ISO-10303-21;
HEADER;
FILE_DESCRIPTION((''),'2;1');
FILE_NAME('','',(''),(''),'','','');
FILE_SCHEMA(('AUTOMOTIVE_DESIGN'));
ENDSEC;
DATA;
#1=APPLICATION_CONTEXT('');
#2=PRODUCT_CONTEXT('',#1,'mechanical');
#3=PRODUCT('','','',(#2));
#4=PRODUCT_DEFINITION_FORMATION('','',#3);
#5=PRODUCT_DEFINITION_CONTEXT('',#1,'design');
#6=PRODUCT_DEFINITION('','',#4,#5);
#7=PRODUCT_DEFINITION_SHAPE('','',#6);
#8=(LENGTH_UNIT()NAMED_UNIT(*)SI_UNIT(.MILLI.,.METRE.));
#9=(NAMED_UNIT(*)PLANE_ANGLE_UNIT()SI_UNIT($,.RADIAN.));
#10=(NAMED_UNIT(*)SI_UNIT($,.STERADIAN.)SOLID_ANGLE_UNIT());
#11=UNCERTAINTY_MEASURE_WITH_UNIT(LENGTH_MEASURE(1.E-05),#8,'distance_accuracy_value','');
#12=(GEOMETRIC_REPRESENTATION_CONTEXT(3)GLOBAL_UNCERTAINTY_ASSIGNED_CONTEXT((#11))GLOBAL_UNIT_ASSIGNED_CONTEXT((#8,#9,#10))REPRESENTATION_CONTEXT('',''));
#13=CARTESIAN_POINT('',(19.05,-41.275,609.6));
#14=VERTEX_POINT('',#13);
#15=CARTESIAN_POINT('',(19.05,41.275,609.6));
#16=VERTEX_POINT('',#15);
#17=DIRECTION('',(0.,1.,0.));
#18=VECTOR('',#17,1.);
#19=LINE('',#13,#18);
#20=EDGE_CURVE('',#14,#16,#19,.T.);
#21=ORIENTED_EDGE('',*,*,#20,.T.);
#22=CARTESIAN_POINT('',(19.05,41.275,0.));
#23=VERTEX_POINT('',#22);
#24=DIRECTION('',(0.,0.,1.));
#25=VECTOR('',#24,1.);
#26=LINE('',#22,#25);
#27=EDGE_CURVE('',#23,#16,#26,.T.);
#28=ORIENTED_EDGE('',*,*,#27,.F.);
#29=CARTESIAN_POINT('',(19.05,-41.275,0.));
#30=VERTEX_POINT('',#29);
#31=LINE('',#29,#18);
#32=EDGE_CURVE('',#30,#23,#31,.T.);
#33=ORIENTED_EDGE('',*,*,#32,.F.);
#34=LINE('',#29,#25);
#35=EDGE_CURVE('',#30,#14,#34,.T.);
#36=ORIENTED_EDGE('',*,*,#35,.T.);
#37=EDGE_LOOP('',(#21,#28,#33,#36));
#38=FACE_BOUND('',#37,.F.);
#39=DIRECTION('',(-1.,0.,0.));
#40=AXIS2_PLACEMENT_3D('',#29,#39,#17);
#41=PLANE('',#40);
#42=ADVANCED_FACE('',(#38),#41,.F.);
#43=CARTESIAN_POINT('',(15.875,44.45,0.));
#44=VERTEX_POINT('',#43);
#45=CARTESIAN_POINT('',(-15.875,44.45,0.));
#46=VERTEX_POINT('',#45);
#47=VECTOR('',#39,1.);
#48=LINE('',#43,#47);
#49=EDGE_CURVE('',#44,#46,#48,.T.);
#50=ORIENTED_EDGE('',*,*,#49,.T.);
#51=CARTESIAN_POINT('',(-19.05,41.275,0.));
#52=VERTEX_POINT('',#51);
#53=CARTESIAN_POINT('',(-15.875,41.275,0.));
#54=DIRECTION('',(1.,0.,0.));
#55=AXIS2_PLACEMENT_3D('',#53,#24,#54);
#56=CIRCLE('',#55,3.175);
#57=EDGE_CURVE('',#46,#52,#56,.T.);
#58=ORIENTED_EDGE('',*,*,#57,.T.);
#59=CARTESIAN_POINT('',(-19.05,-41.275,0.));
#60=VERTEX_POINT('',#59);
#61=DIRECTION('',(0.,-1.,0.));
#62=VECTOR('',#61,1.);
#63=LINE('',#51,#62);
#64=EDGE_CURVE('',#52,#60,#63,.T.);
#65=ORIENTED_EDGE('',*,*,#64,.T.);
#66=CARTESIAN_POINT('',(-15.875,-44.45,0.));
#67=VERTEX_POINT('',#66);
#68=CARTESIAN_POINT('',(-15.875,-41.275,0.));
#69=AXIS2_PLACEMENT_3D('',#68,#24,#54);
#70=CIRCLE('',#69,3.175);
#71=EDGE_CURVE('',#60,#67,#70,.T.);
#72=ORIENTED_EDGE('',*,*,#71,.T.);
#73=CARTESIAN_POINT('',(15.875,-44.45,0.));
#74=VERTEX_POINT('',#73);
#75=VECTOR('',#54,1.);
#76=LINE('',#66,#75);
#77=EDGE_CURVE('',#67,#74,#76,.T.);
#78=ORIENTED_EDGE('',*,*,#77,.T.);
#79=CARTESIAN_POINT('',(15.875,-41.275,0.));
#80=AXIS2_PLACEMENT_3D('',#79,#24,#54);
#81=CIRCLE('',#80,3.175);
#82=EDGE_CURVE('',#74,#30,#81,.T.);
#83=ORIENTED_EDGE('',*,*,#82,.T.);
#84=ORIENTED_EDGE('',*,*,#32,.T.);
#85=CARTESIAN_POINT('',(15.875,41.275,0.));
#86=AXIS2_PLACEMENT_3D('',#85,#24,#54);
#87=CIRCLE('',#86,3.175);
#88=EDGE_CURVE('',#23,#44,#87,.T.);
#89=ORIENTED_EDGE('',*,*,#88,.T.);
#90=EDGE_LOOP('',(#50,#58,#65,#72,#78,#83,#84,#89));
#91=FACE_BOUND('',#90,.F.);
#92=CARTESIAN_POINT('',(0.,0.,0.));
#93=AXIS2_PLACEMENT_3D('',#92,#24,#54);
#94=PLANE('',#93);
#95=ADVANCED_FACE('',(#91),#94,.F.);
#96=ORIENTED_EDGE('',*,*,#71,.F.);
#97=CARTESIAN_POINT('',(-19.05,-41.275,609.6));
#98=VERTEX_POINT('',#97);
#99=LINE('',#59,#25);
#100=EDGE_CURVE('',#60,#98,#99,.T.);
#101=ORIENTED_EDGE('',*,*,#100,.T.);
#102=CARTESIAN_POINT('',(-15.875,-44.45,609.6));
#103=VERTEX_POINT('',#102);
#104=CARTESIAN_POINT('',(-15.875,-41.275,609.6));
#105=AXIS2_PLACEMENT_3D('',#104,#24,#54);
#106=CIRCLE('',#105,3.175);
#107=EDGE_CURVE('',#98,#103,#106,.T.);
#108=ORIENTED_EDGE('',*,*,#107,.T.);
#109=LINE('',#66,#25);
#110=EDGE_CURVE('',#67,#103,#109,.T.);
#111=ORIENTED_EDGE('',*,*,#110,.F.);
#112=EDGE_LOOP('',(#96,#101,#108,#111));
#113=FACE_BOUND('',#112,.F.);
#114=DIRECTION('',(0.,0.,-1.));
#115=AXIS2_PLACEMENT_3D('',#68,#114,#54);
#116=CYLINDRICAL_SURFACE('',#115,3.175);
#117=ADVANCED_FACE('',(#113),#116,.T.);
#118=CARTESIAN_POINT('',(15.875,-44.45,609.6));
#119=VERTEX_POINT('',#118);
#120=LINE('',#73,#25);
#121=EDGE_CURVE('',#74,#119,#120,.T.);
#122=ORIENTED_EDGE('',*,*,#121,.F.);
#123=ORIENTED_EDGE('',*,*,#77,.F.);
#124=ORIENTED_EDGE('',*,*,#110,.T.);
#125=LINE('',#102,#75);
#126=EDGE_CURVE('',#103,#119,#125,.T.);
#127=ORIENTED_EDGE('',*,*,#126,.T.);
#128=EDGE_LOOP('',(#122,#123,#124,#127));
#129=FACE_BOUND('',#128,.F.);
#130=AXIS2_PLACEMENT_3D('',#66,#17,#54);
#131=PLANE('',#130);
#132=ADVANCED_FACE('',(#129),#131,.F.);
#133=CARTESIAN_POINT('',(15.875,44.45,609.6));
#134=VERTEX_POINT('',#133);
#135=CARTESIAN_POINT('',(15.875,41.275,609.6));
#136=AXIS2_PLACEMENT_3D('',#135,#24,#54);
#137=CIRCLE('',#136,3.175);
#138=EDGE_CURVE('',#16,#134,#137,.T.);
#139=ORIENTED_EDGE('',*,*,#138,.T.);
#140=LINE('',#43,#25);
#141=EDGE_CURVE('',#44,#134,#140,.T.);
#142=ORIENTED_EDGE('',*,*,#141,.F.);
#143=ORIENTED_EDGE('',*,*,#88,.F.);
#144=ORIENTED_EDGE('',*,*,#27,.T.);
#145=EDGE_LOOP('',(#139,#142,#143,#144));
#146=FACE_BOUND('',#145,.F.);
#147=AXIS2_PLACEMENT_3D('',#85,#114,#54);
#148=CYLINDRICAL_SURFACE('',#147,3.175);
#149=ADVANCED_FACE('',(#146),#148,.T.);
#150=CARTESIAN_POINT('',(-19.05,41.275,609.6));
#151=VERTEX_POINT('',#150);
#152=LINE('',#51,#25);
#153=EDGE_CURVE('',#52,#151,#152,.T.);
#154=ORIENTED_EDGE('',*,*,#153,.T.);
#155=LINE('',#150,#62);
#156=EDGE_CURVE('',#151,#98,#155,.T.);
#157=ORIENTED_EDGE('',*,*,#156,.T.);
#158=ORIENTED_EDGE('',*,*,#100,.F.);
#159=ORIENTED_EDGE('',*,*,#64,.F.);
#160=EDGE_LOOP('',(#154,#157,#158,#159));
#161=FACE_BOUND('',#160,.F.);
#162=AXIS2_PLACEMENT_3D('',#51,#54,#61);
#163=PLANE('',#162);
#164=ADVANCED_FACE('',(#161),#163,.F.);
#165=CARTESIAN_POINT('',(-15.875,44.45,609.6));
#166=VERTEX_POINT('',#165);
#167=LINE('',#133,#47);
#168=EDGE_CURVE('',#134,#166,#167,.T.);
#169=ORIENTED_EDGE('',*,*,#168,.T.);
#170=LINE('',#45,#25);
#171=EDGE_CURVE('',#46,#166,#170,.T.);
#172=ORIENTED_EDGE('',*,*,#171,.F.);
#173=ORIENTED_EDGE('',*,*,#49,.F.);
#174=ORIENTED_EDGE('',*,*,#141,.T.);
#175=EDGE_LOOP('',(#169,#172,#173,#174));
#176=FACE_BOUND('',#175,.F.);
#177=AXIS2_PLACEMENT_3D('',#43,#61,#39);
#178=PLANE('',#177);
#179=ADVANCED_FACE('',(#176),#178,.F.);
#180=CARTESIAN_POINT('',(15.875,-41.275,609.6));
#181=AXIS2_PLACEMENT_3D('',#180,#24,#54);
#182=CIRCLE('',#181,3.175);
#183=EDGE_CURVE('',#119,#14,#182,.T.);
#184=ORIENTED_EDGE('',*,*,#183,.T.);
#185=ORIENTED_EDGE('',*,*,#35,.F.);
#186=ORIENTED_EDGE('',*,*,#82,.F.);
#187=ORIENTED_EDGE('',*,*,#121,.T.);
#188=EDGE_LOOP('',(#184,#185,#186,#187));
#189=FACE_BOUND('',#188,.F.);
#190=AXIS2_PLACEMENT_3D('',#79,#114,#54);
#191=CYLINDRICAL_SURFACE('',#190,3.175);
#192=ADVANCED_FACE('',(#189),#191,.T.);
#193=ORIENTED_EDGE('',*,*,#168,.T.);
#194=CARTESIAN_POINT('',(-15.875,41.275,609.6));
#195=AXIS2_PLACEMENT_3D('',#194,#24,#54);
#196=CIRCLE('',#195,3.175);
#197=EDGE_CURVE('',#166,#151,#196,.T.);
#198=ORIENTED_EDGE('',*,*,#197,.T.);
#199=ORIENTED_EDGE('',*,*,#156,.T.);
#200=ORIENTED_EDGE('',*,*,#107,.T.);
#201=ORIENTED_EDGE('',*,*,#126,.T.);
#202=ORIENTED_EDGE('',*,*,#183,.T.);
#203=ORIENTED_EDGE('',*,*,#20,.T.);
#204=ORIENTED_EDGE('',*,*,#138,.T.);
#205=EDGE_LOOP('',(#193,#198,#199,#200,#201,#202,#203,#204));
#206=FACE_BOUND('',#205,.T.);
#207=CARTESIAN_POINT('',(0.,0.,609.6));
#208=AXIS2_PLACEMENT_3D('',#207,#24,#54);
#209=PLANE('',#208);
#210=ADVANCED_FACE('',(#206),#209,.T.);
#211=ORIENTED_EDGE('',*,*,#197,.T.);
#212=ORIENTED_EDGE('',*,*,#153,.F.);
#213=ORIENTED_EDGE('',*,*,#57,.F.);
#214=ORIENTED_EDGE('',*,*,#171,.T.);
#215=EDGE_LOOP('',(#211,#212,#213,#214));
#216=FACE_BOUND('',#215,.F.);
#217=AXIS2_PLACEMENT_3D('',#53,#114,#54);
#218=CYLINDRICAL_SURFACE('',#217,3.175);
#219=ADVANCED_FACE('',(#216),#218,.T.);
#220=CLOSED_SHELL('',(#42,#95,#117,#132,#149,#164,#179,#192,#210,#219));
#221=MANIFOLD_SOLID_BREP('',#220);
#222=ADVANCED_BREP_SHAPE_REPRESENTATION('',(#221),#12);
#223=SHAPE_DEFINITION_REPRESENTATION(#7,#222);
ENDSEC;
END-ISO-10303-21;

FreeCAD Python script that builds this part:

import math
import FreeCAD as App
import Part
import Sketcher

V = App.Vector
Q = App.Units.Quantity

doc = App.newDocument("Part")
body = doc.addObject("PartDesign::Body", "Body")

sketch1 = doc.addObject("Sketcher::SketchObject", "Sketch")
body.addObject(sketch1)
sketch1.AttachmentSupport = (doc.XY_Plane, [""])
sketch1.MapMode = "FlatFace"
sketch1.addGeometry([
    Part.ArcOfCircle(Part.Circle(V(-15.875, -41.275, 0), V(0, 0, 1), 3.175), math.radians(180), math.radians(270)),
    Part.LineSegment(V(-15.875, -44.45, 0), V(15.875, -44.45, 0)),
    Part.ArcOfCircle(Part.Circle(V(15.875, -41.275, 0), V(0, 0, 1), 3.175), math.radians(-90), math.radians(0)),
    Part.LineSegment(V(19.05, -41.275, 0), V(19.05, 41.275, 0)),
    Part.ArcOfCircle(Part.Circle(V(15.875, 41.275, 0), V(0, 0, 1), 3.175), math.radians(0), math.radians(90)),
    Part.LineSegment(V(15.875, 44.45, 0), V(-15.875, 44.45, 0)),
    Part.ArcOfCircle(Part.Circle(V(-15.875, 41.275, 0), V(0, 0, 1), 3.175), math.radians(90), math.radians(180)),
    Part.LineSegment(V(-19.05, 41.275, 0), V(-19.05, -41.275, 0)),
], False)
sketch1.addConstraint([
    Sketcher.Constraint("Tangent", 0, 2, 1, 1),
    Sketcher.Constraint("Tangent", 1, 2, 2, 1),
    Sketcher.Constraint("Tangent", 2, 2, 3, 1),
    Sketcher.Constraint("Tangent", 3, 2, 4, 1),
    Sketcher.Constraint("Tangent", 4, 2, 5, 1),
    Sketcher.Constraint("Tangent", 5, 2, 6, 1),
    Sketcher.Constraint("Tangent", 6, 2, 7, 1),
    Sketcher.Constraint("Tangent", 7, 2, 0, 1),
    Sketcher.Constraint("Horizontal", 1),
    Sketcher.Constraint("Vertical", 3),
    Sketcher.Constraint("Horizontal", 5),
    Sketcher.Constraint("Vertical", 7),
    Sketcher.Constraint("Equal", 0, 2),
    Sketcher.Constraint("Equal", 2, 4),
    Sketcher.Constraint("Equal", 4, 6),
    Sketcher.Constraint("Symmetric", 0, 3, 4, 3, -1, 1),
    Sketcher.Constraint("Radius", 0, Q("0.125 in")),
    Sketcher.Constraint("DistanceX", 1, 1, 1, 2, Q("1.25 in")),
    Sketcher.Constraint("DistanceY", 3, 1, 3, 2, Q("3.25 in")),
])
pad1 = doc.addObject("PartDesign::Pad", "Pad")
body.addObject(pad1)
pad1.Profile = sketch1
pad1.Length = Q("24 in")

doc.recompute()
